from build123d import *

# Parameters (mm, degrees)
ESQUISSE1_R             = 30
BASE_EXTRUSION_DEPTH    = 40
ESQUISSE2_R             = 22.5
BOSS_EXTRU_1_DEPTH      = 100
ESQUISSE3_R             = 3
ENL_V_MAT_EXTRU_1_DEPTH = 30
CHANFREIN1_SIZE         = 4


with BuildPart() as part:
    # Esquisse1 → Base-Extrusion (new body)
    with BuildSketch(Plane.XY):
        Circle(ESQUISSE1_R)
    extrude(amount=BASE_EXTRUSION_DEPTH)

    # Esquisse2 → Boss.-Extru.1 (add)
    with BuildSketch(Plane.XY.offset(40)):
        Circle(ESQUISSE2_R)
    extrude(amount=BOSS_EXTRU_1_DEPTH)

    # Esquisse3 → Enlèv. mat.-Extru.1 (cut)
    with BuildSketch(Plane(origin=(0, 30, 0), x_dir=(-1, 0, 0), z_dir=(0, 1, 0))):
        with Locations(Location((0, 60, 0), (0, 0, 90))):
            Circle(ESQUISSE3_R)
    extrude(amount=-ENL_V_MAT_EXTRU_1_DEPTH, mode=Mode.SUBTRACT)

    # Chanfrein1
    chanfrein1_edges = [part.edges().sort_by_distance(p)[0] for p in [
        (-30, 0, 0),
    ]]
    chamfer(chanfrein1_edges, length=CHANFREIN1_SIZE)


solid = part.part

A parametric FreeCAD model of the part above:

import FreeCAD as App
import Part
import Sketcher

V = App.Vector
Q = App.Units.Quantity


def edges_at(feature, points):
    """Names of the edges that pass closest to the given points."""
    edges = feature.Shape.Edges
    near = lambda p: min(range(len(edges)), key=lambda i: edges[i].distToShape(Part.Vertex(*p))[0])
    return sorted({f"Edge{near(p) + 1}" for p in points})

doc = App.newDocument("Part")
params = doc.addObject("Spreadsheet::Sheet", "Params")
for row, (alias, value) in enumerate([
    ("sketch1_diameter", "60 mm"),
    ("pad1_length", "40 mm"),
    ("sketch2_diameter", "45 mm"),
    ("pad2_length", "100 mm"),
    ("sketch3_diameter", "6 mm"),
    ("pocket1_length", "30 mm"),
    ("chamfer_size", "4 mm"),
], start=1):
    params.set(f"A{row}", alias)
    params.set(f"B{row}", "=" + value)
    params.setAlias(f"B{row}", alias)

body = doc.addObject("PartDesign::Body", "Body")

# Sketch on XY plane
sketch1 = body.newObject("Sketcher::SketchObject", "Sketch")
sketch1.AttachmentSupport = (doc.getObject("XY_Plane"), [""])
sketch1.MapMode = "FlatFace"
sketch1.addGeometry(Part.Circle(V(0, 0, 0), V(0, 0, 1), 30), False)
sketch1.addConstraint([
    Sketcher.Constraint("Coincident", 0, 3, -1, 1),
    Sketcher.Constraint("Diameter", 0, Q("60 mm")),
])
sketch1.setExpression("Constraints[1]", "Params.sketch1_diameter")
pad1 = body.newObject("PartDesign::Pad", "Pad")
pad1.Profile = sketch1
pad1.setExpression("Length", "Params.pad1_length")

# Sketch on XY plane
sketch2 = body.newObject("Sketcher::SketchObject", "Sketch001")
sketch2.AttachmentSupport = (doc.getObject("XY_Plane"), [""])
sketch2.MapMode = "FlatFace"
sketch2.AttachmentOffset = App.Placement(V(0, 0, 40), App.Rotation())
sketch2.addGeometry(Part.Circle(V(0, 0, 0), V(0, 0, 1), 22), False)
sketch2.addConstraint([
    Sketcher.Constraint("Coincident", 0, 3, -1, 1),
    Sketcher.Constraint("Diameter", 0, Q("45 mm")),
])
sketch2.setExpression("Constraints[1]", "Params.sketch2_diameter")
pad2 = body.newObject("PartDesign::Pad", "Pad001")
pad2.Profile = sketch2
pad2.setExpression("Length", "Params.pad2_length")

# Sketch on XZ plane
sketch3 = body.newObject("Sketcher::SketchObject", "Sketch002")
sketch3.AttachmentSupport = (doc.getObject("XZ_Plane"), [""])
sketch3.MapMode = "FlatFace"
sketch3.AttachmentOffset = App.Placement(V(0, 0, -30), App.Rotation())
sketch3.addGeometry(Part.Circle(V(0, 60, 0), V(0, 0, 1), 3), False)
sketch3.addConstraint([
    Sketcher.Constraint("PointOnObject", 0, 3, -2),
    Sketcher.Constraint("Diameter", 0, Q("6 mm")),
    Sketcher.Constraint("DistanceY", -1, 1, 0, 3, Q("60 mm")),
])
sketch3.setExpression("Constraints[1]", "Params.sketch3_diameter")
pocket1 = body.newObject("PartDesign::Pocket", "Pocket")
pocket1.Profile = sketch3
pocket1.setExpression("Length", "Params.pocket1_length")
pocket1.Reversed = True
doc.recompute()

chamfer = body.newObject("PartDesign::Chamfer", "Chamfer")
chamfer.Base = (pocket1, edges_at(pocket1, [(-30, 0, 0)]))
chamfer.setExpression("Size", "Params.chamfer_size")

doc.recompute()
